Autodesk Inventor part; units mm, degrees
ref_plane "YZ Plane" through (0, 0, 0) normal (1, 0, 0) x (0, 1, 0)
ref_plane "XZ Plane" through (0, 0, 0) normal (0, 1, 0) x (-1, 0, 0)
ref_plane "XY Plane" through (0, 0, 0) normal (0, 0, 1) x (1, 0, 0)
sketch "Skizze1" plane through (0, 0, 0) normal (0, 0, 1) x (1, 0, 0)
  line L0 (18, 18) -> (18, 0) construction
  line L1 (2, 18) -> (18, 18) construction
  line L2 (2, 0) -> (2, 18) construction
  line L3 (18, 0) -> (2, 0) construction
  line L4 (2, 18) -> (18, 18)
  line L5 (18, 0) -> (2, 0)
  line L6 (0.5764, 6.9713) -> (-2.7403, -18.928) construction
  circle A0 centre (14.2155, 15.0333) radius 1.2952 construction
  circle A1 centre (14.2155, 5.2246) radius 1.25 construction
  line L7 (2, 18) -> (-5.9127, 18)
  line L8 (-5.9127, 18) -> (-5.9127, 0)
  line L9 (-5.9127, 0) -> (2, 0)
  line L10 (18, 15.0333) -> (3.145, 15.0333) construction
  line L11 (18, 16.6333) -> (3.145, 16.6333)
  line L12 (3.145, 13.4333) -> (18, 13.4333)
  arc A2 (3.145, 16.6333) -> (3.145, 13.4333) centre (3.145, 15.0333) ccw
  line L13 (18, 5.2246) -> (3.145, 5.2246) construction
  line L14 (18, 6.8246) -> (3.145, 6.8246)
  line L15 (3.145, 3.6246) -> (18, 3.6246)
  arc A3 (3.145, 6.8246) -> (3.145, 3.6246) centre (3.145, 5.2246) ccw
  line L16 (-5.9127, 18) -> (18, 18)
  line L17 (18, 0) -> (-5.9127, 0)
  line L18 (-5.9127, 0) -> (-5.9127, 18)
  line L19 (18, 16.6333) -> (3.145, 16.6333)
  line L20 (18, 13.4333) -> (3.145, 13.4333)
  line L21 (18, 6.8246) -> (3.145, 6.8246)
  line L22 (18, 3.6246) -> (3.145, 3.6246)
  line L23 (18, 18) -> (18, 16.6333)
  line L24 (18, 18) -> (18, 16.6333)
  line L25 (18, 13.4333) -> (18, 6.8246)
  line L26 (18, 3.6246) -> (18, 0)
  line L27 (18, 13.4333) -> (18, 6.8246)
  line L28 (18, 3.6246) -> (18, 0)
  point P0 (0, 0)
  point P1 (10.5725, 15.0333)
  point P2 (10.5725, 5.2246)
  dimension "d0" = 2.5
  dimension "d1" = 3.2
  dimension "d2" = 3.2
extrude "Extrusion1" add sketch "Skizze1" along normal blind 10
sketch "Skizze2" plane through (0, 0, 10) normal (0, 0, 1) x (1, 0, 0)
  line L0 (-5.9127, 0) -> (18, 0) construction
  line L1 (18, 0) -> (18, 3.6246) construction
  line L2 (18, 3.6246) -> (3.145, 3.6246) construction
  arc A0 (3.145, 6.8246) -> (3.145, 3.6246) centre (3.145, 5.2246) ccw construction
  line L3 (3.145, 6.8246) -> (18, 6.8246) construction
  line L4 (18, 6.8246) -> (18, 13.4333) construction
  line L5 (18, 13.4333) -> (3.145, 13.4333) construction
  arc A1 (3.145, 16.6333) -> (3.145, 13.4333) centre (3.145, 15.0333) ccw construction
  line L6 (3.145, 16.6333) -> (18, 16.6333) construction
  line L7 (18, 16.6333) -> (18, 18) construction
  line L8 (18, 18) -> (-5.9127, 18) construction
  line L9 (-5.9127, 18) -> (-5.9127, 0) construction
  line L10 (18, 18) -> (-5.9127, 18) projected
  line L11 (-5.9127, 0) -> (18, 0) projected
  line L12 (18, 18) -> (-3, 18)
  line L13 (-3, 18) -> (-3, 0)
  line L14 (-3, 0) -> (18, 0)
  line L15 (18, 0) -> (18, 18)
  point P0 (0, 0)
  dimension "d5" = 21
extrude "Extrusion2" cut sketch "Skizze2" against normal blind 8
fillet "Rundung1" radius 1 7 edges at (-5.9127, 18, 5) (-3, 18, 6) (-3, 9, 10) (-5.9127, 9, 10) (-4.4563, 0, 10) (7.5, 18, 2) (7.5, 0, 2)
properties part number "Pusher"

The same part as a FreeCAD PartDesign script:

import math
import FreeCAD as App
import Part
import Sketcher

V = App.Vector
Q = App.Units.Quantity


def edges_at(feature, points):
    """Names of the edges that pass closest to the given points."""
    edges = feature.Shape.Edges
    near = lambda p: min(range(len(edges)), key=lambda i: edges[i].distToShape(Part.Vertex(*p))[0])
    return sorted({f"Edge{near(p) + 1}" for p in points})


def add_polygon(sketch, points):
    """Adds a closed chain of lines whose ends are joined by coincident constraints."""
    first, n = sketch.GeometryCount, len(points)
    for a, b in zip(points, points[1:] + points[:1]):
        sketch.addGeometry(Part.LineSegment(App.Vector(*a, 0), App.Vector(*b, 0)), False)
    for i in range(n):
        sketch.addConstraint(Sketcher.Constraint("Coincident", first + i, 2, first + (i + 1) % n, 1))

doc = App.newDocument("Part")
body = doc.addObject("PartDesign::Body", "Body")

sketch1 = body.newObject("Sketcher::SketchObject", "Sketch")
sketch1.AttachmentSupport = (doc.getObject("XY_Plane"), [""])
sketch1.MapMode = "FlatFace"
sketch1.addGeometry([
    Part.LineSegment(V(18, 18, 0), V(-5.9, 18, 0)),
    Part.LineSegment(V(-5.9, 18, 0), V(-5.9, 0, 0)),
    Part.LineSegment(V(-5.9, 0, 0), V(18, 0, 0)),
    Part.LineSegment(V(18, 0, 0), V(18, 3.6, 0)),
    Part.LineSegment(V(18, 3.6, 0), V(3.1, 3.6, 0)),
    Part.ArcOfCircle(Part.Circle(V(3.1, 5.2, 0), V(0, 0, 1), 1.6), math.radians(90), math.radians(270)),
    Part.LineSegment(V(3.1, 6.8, 0), V(18, 6.8, 0)),
    Part.LineSegment(V(18, 6.8, 0), V(18, 13.4, 0)),
    Part.LineSegment(V(18, 13.4, 0), V(3.1, 13.4, 0)),
    Part.ArcOfCircle(Part.Circle(V(3.1, 15, 0), V(0, 0, 1), 1.6), math.radians(90), math.radians(270)),
    Part.LineSegment(V(3.1, 16.6, 0), V(18, 16.6, 0)),
    Part.LineSegment(V(18, 16.6, 0), V(18, 18, 0)),
], False)
sketch1.addConstraint([
    Sketcher.Constraint("Coincident", 0, 2, 1, 1),
    Sketcher.Constraint("Coincident", 1, 2, 2, 1),
    Sketcher.Constraint("Coincident", 2, 2, 3, 1),
    Sketcher.Constraint("Coincident", 3, 2, 4, 1),
    Sketcher.Constraint("Tangent", 4, 2, 5, 2),
    Sketcher.Constraint("Tangent", 5, 1, 6, 1),
    Sketcher.Constraint("Coincident", 6, 2, 7, 1),
    Sketcher.Constraint("Coincident", 7, 2, 8, 1),
    Sketcher.Constraint("Tangent", 8, 2, 9, 2),
    Sketcher.Constraint("Tangent", 9, 1, 10, 1),
    Sketcher.Constraint("Coincident", 10, 2, 11, 1),
    Sketcher.Constraint("Coincident", 11, 2, 0, 1),
    Sketcher.Constraint("Horizontal", 0),
    Sketcher.Constraint("Vertical", 1),
    Sketcher.Constraint("Horizontal", 2),
    Sketcher.Constraint("Vertical", 3),
    Sketcher.Constraint("Horizontal", 4),
    Sketcher.Constraint("Horizontal", 6),
    Sketcher.Constraint("Vertical", 7),
    Sketcher.Constraint("Horizontal", 8),
    Sketcher.Constraint("Horizontal", 10),
    Sketcher.Constraint("Vertical", 11),
    Sketcher.Constraint("Equal", 5, 9),
    Sketcher.Constraint("PointOnObject", 1, 2, -1),
    Sketcher.Constraint("Vertical", 5, 3, 9, 3),
    Sketcher.Constraint("Vertical", 3, 2, 6, 2),
    Sketcher.Constraint("Vertical", 7, 2, 10, 2),
    Sketcher.Constraint("Radius", 5, Q("1.6 mm")),
    Sketcher.Constraint("DistanceY", 1, 2, 1, 1, Q("18 mm")),
    Sketcher.Constraint("DistanceX", -1, 1, 2, 2, Q("18 mm")),
    Sketcher.Constraint("DistanceX", 4, 2, 4, 1, Q("14.855 mm")),
    Sketcher.Constraint("DistanceX", 0, 2, 0, 1, Q("23.9127 mm")),
    Sketcher.Constraint("DistanceY", 3, 1, 3, 2, Q("3.6246 mm")),
    Sketcher.Constraint("DistanceY", 7, 1, 7, 2, Q("6.6087 mm")),
])
pad1 = body.newObject("PartDesign::Pad", "Pad")
pad1.Profile = sketch1
pad1.Length = 10

sketch2 = body.newObject("Sketcher::SketchObject", "Sketch001")
sketch2.AttachmentSupport = (doc.getObject("XY_Plane"), [""])
sketch2.MapMode = "FlatFace"
sketch2.AttachmentOffset = App.Placement(V(0, 0, 10), App.Rotation())
add_polygon(sketch2, [(18, 0), (18, 18), (-3, 18), (-3, 0)])
sketch2.addConstraint([
    Sketcher.Constraint("Vertical", 0),
    Sketcher.Constraint("Horizontal", 1),
    Sketcher.Constraint("Vertical", 2),
    Sketcher.Constraint("Horizontal", 3),
    Sketcher.Constraint("PointOnObject", 2, 2, -1),
    Sketcher.Constraint("DistanceX", 1, 2, 1, 1, Q("21 mm")),
    Sketcher.Constraint("DistanceY", 0, 1, 0, 2, Q("18 mm")),
    Sketcher.Constraint("DistanceX", -1, 1, 0, 2, Q("18 mm")),
])
pocket1 = body.newObject("PartDesign::Pocket", "Pocket")
pocket1.Profile = sketch2
pocket1.Length = 8
doc.recompute()

fillet = body.newObject("PartDesign::Fillet", "Fillet")
fillet.Base = (pocket1, edges_at(pocket1, [
    (-5.913, 18, 5),
    (-3, 18, 6),
    (-3, 9, 10),
    (-5.913, 9, 10),
    (-4.456, 0, 10),
    (7.5, 18, 2),
    (7.5, 0, 2),
]))
fillet.Radius = 1

doc.recompute()
